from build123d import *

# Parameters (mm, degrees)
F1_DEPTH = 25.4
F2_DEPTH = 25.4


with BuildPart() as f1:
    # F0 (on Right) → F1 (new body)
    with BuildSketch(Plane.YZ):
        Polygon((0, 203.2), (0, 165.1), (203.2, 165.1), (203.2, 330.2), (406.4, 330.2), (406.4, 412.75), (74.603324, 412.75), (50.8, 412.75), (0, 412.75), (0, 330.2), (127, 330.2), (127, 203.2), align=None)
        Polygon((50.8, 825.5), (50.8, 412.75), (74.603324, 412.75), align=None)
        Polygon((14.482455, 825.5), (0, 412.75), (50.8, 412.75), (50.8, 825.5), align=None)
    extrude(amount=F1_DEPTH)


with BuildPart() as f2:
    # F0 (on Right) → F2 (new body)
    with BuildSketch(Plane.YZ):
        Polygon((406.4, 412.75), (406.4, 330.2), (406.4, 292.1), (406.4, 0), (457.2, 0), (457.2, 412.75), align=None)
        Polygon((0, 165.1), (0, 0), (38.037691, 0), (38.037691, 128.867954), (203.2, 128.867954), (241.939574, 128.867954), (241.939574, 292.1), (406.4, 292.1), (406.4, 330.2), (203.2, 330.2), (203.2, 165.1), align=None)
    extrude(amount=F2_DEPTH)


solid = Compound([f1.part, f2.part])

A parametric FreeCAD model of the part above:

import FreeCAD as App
import Part
import Sketcher

V = App.Vector
Q = App.Units.Quantity


def add_polygon(sketch, points):
    """Adds a closed chain of lines whose ends are joined by coincident constraints."""
    first, n = sketch.GeometryCount, len(points)
    for a, b in zip(points, points[1:] + points[:1]):
        sketch.addGeometry(Part.LineSegment(App.Vector(*a, 0), App.Vector(*b, 0)), False)
    for i in range(n):
        sketch.addConstraint(Sketcher.Constraint("Coincident", first + i, 2, first + (i + 1) % n, 1))

doc = App.newDocument("Part")
params = doc.addObject("Spreadsheet::Sheet", "Params")
for row, (alias, value) in enumerate([
    ("sketch1_width", "8 in"),
    ("sketch1_width2", "5 in"),
    ("sketch1_height", "1.5 in"),
    ("sketch1_height2", "3.25 in"),
    ("sketch1_length", "16.26 in"),
    ("pad1_length", "1 in"),
    ("sketch2_width", "8 in"),
    ("sketch2_width2", "2 in"),
    ("sketch2_height", "6.5 in"),
    ("sketch2_height2", "11.5 in"),
    ("sketch2_height3", "3.25 in"),
    ("pad2_length", "1 in"),
], start=1):
    params.set(f"A{row}", alias)
    params.set(f"B{row}", "=" + value)
    params.setAlias(f"B{row}", alias)

body = doc.addObject("PartDesign::Body", "Body")

sketch1 = body.newObject("Sketcher::SketchObject", "Sketch")
sketch1.AttachmentSupport = (doc.getObject("YZ_Plane"), [""])
sketch1.MapMode = "FlatFace"
add_polygon(sketch1, [(0, 203), (0, 165), (203, 165), (203, 330), (406, 330), (406, 413), (75, 413), (51, 826), (14, 826), (0, 413), (0, 330), (127, 330), (127, 203)])
sketch1.addConstraint([
    Sketcher.Constraint("Vertical", 0),
    Sketcher.Constraint("Horizontal", 1),
    Sketcher.Constraint("Vertical", 2),
    Sketcher.Constraint("Horizontal", 3),
    Sketcher.Constraint("Vertical", 4),
    Sketcher.Constraint("Horizontal", 5),
    Sketcher.Constraint("Horizontal", 7),
    Sketcher.Constraint("Vertical", 9),
    Sketcher.Constraint("Horizontal", 10),
    Sketcher.Constraint("Vertical", 11),
    Sketcher.Constraint("Horizontal", 12),
    Sketcher.Constraint("PointOnObject", 0, 2, -2),
    Sketcher.Constraint("PointOnObject", 8, 2, -2),
    Sketcher.Constraint("Horizontal", 5, 2, 8, 2),
    Sketcher.Constraint("Horizontal", 3, 2, 9, 2),
    Sketcher.Constraint("Equal", 1, 3),
    Sketcher.Constraint("Equal", 12, 11),
    Sketcher.Constraint("DistanceX", 1, 1, 1, 2, Q("8 in")),
    Sketcher.Constraint("DistanceX", 10, 1, 10, 2, Q("5 in")),
    Sketcher.Constraint("DistanceY", 0, 2, 0, 1, Q("1.5 in")),
    Sketcher.Constraint("DistanceY", -1, 1, 2, 2, Q("13 in")),
    Sketcher.Constraint("DistanceX", -1, 1, 6, 2, Q("2 in")),
    Sketcher.Constraint("DistanceY", 0, 2, 6, 2, Q("26 in")),
    Sketcher.Constraint("DistanceY", 4, 1, 4, 2, Q("3.25 in")),
    Sketcher.Constraint("Distance", 8, Q("16.26 in")),
    Sketcher.Constraint("Distance", 6, Q("16.277 in")),
])
sketch1.setExpression("Constraints[30]", "Params.sketch1_width")
sketch1.setExpression("Constraints[31]", "Params.sketch1_width2")
sketch1.setExpression("Constraints[32]", "Params.sketch1_height")
sketch1.setExpression("Constraints[36]", "Params.sketch1_height2")
sketch1.setExpression("Constraints[37]", "Params.sketch1_length")
pad1 = body.newObject("PartDesign::Pad", "Pad")
pad1.Profile = sketch1
pad1.setExpression("Length", "Params.pad1_length")
body2 = doc.addObject("PartDesign::Body", "Body001")

sketch2 = body2.newObject("Sketcher::SketchObject", "Sketch001")
sketch2.AttachmentSupport = (doc.getObject("YZ_Plane001"), [""])
sketch2.MapMode = "FlatFace"
add_polygon(sketch2, [(406, 413), (406, 330), (203, 330), (203, 165), (0, 165), (0, 0), (38, 0), (38, 129), (242, 129), (242, 292), (406, 292), (406, 0), (457, 0), (457, 413)])
sketch2.addConstraint([
    Sketcher.Constraint("Vertical", 0),
    Sketcher.Constraint("Horizontal", 1),
    Sketcher.Constraint("Vertical", 2),
    Sketcher.Constraint("Horizontal", 3),
    Sketcher.Constraint("Vertical", 4),
    Sketcher.Constraint("Horizontal", 5),
    Sketcher.Constraint("Vertical", 6),
    Sketcher.Constraint("Horizontal", 7),
    Sketcher.Constraint("Vertical", 8),
    Sketcher.Constraint("Horizontal", 9),
    Sketcher.Constraint("Vertical", 10),
    Sketcher.Constraint("Horizontal", 11),
    Sketcher.Constraint("Vertical", 12),
    Sketcher.Constraint("Horizontal", 13),
    Sketcher.Constraint("Coincident", 4, 2, -1, 1),
    Sketcher.Constraint("PointOnObject", 10, 2, -1),
    Sketcher.Constraint("Vertical", 0, 2, 9, 2),
    Sketcher.Constraint("Equal", 1, 3),
    Sketcher.Constraint("Equal", 2, 4),
    Sketcher.Constraint("DistanceX", 1, 2, 1, 1, Q("8 in")),
    Sketcher.Constraint("DistanceX", 11, 1, 11, 2, Q("2 in")),
    Sketcher.Constraint("DistanceY", 2, 2, 2, 1, Q("6.5 in")),
    Sketcher.Constraint("DistanceY", 10, 2, 10, 1, Q("11.5 in")),
    Sketcher.Constraint("DistanceY", 0, 2, 0, 1, Q("3.25 in")),
    Sketcher.Constraint("DistanceX", 5, 1, 5, 2, 38.037691),
    Sketcher.Constraint("DistanceX", 7, 1, 7, 2, 203.901883),
    Sketcher.Constraint("DistanceY", 6, 1, 6, 2, 128.867954),
])
sketch2.setExpression("Constraints[33]", "Params.sketch2_width")
sketch2.setExpression("Constraints[34]", "Params.sketch2_width2")
sketch2.setExpression("Constraints[35]", "Params.sketch2_height")
sketch2.setExpression("Constraints[36]", "Params.sketch2_height2")
sketch2.setExpression("Constraints[37]", "Params.sketch2_height3")
pad2 = body2.newObject("PartDesign::Pad", "Pad001")
pad2.Profile = sketch2
pad2.setExpression("Length", "Params.pad2_length")

doc.recompute()
